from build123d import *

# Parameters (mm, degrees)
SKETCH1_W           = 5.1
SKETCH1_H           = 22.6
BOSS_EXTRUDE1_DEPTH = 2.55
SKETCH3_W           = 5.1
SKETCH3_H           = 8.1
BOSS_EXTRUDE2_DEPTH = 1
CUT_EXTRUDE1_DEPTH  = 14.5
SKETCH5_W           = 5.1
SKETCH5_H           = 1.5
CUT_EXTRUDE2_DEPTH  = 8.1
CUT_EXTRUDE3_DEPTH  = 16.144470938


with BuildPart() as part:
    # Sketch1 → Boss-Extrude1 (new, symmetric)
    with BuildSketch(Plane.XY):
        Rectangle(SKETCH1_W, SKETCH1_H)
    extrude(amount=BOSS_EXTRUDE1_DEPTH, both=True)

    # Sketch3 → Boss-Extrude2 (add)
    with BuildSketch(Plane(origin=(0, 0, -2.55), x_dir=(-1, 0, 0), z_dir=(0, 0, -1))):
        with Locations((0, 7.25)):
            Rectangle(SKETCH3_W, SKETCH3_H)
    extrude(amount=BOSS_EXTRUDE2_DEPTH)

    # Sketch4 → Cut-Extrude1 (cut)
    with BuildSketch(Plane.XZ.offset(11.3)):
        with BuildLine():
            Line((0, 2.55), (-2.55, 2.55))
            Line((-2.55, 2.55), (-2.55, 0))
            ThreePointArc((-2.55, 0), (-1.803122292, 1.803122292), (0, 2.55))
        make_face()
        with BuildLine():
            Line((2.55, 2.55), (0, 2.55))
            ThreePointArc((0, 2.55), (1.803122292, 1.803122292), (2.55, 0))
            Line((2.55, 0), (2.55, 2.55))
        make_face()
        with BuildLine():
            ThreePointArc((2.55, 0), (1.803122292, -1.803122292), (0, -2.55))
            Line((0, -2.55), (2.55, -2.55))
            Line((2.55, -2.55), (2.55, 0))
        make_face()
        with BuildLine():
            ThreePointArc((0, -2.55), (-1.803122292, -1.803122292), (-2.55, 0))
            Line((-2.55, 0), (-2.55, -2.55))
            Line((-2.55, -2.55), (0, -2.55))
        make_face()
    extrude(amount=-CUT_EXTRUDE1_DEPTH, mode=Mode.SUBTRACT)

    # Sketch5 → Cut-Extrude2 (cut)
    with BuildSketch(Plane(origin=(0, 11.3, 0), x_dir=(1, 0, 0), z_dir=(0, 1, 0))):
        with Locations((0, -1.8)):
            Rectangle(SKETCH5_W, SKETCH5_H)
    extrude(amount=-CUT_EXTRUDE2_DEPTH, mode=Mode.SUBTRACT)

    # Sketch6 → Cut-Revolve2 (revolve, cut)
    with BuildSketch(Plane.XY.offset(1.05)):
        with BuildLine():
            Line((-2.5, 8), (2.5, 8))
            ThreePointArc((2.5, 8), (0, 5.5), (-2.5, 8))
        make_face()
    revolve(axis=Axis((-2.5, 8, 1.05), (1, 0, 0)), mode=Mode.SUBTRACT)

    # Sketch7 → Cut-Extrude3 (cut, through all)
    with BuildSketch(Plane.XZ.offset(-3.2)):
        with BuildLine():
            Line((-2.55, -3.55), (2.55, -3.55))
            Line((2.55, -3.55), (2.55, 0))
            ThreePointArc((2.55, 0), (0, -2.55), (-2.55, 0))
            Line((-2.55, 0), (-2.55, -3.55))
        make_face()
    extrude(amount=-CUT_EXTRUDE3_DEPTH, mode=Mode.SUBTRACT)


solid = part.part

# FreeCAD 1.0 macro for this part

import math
import FreeCAD as App
import Part
import Sketcher
from FreeCAD import Vector

doc = App.newDocument("Part")
params = doc.addObject("Spreadsheet::Sheet", "Params")
for row, (alias, value) in enumerate([
    ("sketch1_width", "5.1 mm"),
    ("sketch1_height", "22.6 mm"),
    ("pad1_length", "5.1 mm"),
    ("sketch2_width", "5.1 mm"),
    ("sketch2_height", "8.1 mm"),
    ("pad2_length", "1 mm"),
    ("sketch3_radius", "2.55 mm"),
    ("pocket1_length", "14.5 mm"),
    ("sketch4_width", "5.1 mm"),
    ("sketch4_height", "1.5 mm"),
    ("pocket2_length", "8.1 mm"),
    ("sketch5_radius", "2.5 mm"),
    ("groove_angle", "360 deg"),
    ("sketch6_radius", "2.55 mm"),
    ("sketch6_height", "3.55 mm"),
], start=1):
    params.set(f"A{row}", alias)
    params.set(f"B{row}", "=" + value)
    params.setAlias(f"B{row}", alias)

body = doc.addObject("PartDesign::Body", "Body")

sketch1 = doc.addObject("Sketcher::SketchObject", "Sketch")
body.addObject(sketch1)
sketch1.AttachmentSupport = (doc.XY_Plane, [""])
sketch1.MapMode = "FlatFace"
sketch1.addGeometry([
    Part.LineSegment(Vector(-2.55, 11.3, 0), Vector(-2.55, -11.3, 0)),
    Part.LineSegment(Vector(-2.55, -11.3, 0), Vector(2.55, -11.3, 0)),
    Part.LineSegment(Vector(2.55, -11.3, 0), Vector(2.55, 11.3, 0)),
    Part.LineSegment(Vector(2.55, 11.3, 0), Vector(-2.55, 11.3, 0)),
], False)
sketch1.addConstraint([
    Sketcher.Constraint("Coincident", 0, 2, 1, 1),
    Sketcher.Constraint("Coincident", 1, 2, 2, 1),
    Sketcher.Constraint("Coincident", 2, 2, 3, 1),
    Sketcher.Constraint("Coincident", 3, 2, 0, 1),
    Sketcher.Constraint("Vertical", 0),
    Sketcher.Constraint("Horizontal", 1),
    Sketcher.Constraint("Vertical", 2),
    Sketcher.Constraint("Horizontal", 3),
    Sketcher.Constraint("Symmetric", 0, 2, 2, 2, -1, 1),
    Sketcher.Constraint("DistanceX", 1, 1, 1, 2, 5.1),
    Sketcher.Constraint("DistanceY", 0, 2, 0, 1, 22.6),
])
sketch1.setExpression("Constraints[9]", "Params.sketch1_width")
sketch1.setExpression("Constraints[10]", "Params.sketch1_height")
pad1 = doc.addObject("PartDesign::Pad", "Pad")
body.addObject(pad1)
pad1.Profile = sketch1
pad1.setExpression("Length", "Params.pad1_length")
pad1.Midplane = True

sketch2 = doc.addObject("Sketcher::SketchObject", "Sketch001")
body.addObject(sketch2)
sketch2.AttachmentSupport = (doc.XY_Plane, [""])
sketch2.MapMode = "FlatFace"
sketch2.AttachmentOffset = App.Placement(Vector(0, 0, -2.55), App.Rotation())
sketch2.addGeometry([
    Part.LineSegment(Vector(2.55, 11.3, 0), Vector(2.55, 3.2, 0)),
    Part.LineSegment(Vector(2.55, 3.2, 0), Vector(-2.55, 3.2, 0)),
    Part.LineSegment(Vector(-2.55, 3.2, 0), Vector(-2.55, 11.3, 0)),
    Part.LineSegment(Vector(-2.55, 11.3, 0), Vector(2.55, 11.3, 0)),
], False)
sketch2.addConstraint([
    Sketcher.Constraint("Coincident", 0, 2, 1, 1),
    Sketcher.Constraint("Coincident", 1, 2, 2, 1),
    Sketcher.Constraint("Coincident", 2, 2, 3, 1),
    Sketcher.Constraint("Coincident", 3, 2, 0, 1),
    Sketcher.Constraint("Vertical", 0),
    Sketcher.Constraint("Horizontal", 1),
    Sketcher.Constraint("Vertical", 2),
    Sketcher.Constraint("Horizontal", 3),
    Sketcher.Constraint("DistanceX", 1, 2, 1, 1, 5.1),
    Sketcher.Constraint("DistanceY", 0, 2, 0, 1, 8.1),
    Sketcher.Constraint("DistanceY", -1, 1, 0, 2, 3.2),
    Sketcher.Constraint("DistanceX", -1, 1, 0, 2, 2.55),
])
sketch2.setExpression("Constraints[8]", "Params.sketch2_width")
sketch2.setExpression("Constraints[9]", "Params.sketch2_height")
pad2 = doc.addObject("PartDesign::Pad", "Pad001")
body.addObject(pad2)
pad2.Profile = sketch2
pad2.setExpression("Length", "Params.pad2_length")
pad2.Reversed = True

sketch3 = doc.addObject("Sketcher::SketchObject", "Sketch002")
body.addObject(sketch3)
sketch3.AttachmentSupport = (doc.XZ_Plane, [""])
sketch3.MapMode = "FlatFace"
sketch3.AttachmentOffset = App.Placement(Vector(0, 0, 11.3), App.Rotation())
sketch3.addGeometry([
    Part.LineSegment(Vector(0, 2.55, 0), Vector(-2.55, 2.55, 0)),
    Part.LineSegment(Vector(-2.55, 2.55, 0), Vector(-2.55, 0, 0)),
    Part.ArcOfCircle(Part.Circle(Vector(0, 0, 0), Vector(0, 0, 1), 2.55), math.radians(90), math.radians(180)),
    Part.LineSegment(Vector(2.55, 2.55, 0), Vector(0, 2.55, 0)),
    Part.ArcOfCircle(Part.Circle(Vector(0, 0, 0), Vector(0, 0, 1), 2.55), math.radians(0), math.radians(90)),
    Part.LineSegment(Vector(2.55, 0, 0), Vector(2.55, 2.55, 0)),
    Part.ArcOfCircle(Part.Circle(Vector(0, 0, 0), Vector(0, 0, 1), 2.55), math.radians(-90), math.radians(0)),
    Part.LineSegment(Vector(0, -2.55, 0), Vector(2.55, -2.55, 0)),
    Part.LineSegment(Vector(2.55, -2.55, 0), Vector(2.55, 0, 0)),
    Part.ArcOfCircle(Part.Circle(Vector(0, 0, 0), Vector(0, 0, 1), 2.55), math.radians(180), math.radians(270)),
    Part.LineSegment(Vector(-2.55, 0, 0), Vector(-2.55, -2.55, 0)),
    Part.LineSegment(Vector(-2.55, -2.55, 0), Vector(0, -2.55, 0)),
], False)
sketch3.addConstraint([
    Sketcher.Constraint("Coincident", 0, 2, 1, 1),
    Sketcher.Constraint("Tangent", 1, 2, 2, 2),
    Sketcher.Constraint("Tangent", 2, 1, 0, 1),
    Sketcher.Constraint("Tangent", 3, 2, 4, 2),
    Sketcher.Constraint("Tangent", 4, 1, 5, 1),
    Sketcher.Constraint("Coincident", 5, 2, 3, 1),
    Sketcher.Constraint("Tangent", 6, 1, 7, 1),
    Sketcher.Constraint("Coincident", 7, 2, 8, 1),
    Sketcher.Constraint("Tangent", 8, 2, 6, 2),
    Sketcher.Constraint("Tangent", 9, 1, 10, 1),
    Sketcher.Constraint("Coincident", 10, 2, 11, 1),
    Sketcher.Constraint("Tangent", 11, 2, 9, 2),
    Sketcher.Constraint("Horizontal", 0),
    Sketcher.Constraint("Vertical", 1),
    Sketcher.Constraint("Horizontal", 3),
    Sketcher.Constraint("Vertical", 5),
    Sketcher.Constraint("Horizontal", 7),
    Sketcher.Constraint("Vertical", 8),
    Sketcher.Constraint("Vertical", 10),
    Sketcher.Constraint("Horizontal", 11),
    Sketcher.Constraint("Coincident", 2, 3, -1, 1),
    Sketcher.Constraint("Coincident", 4, 3, -1, 1),
    Sketcher.Constraint("Coincident", 6, 3, -1, 1),
    Sketcher.Constraint("Coincident", 9, 3, -1, 1),
    Sketcher.Constraint("Equal", 2, 4),
    Sketcher.Constraint("Equal", 4, 6),
    Sketcher.Constraint("Equal", 6, 9),
    Sketcher.Constraint("Radius", 2, 2.55),
])
sketch3.setExpression("Constraints[27]", "Params.sketch3_radius")
pocket1 = doc.addObject("PartDesign::Pocket", "Pocket")
body.addObject(pocket1)
pocket1.Profile = sketch3
pocket1.setExpression("Length", "Params.pocket1_length")

sketch4 = doc.addObject("Sketcher::SketchObject", "Sketch003")
body.addObject(sketch4)
sketch4.AttachmentSupport = (doc.XZ_Plane, [""])
sketch4.MapMode = "FlatFace"
sketch4.AttachmentOffset = App.Placement(Vector(0, 0, -11.3), App.Rotation())
sketch4.addGeometry([
    Part.LineSegment(Vector(-2.55, 1.05, 0), Vector(-2.55, 2.55, 0)),
    Part.LineSegment(Vector(-2.55, 2.55, 0), Vector(2.55, 2.55, 0)),
    Part.LineSegment(Vector(2.55, 2.55, 0), Vector(2.55, 1.05, 0)),
    Part.LineSegment(Vector(2.55, 1.05, 0), Vector(-2.55, 1.05, 0)),
], False)
sketch4.addConstraint([
    Sketcher.Constraint("Coincident", 0, 2, 1, 1),
    Sketcher.Constraint("Coincident", 1, 2, 2, 1),
    Sketcher.Constraint("Coincident", 2, 2, 3, 1),
    Sketcher.Constraint("Coincident", 3, 2, 0, 1),
    Sketcher.Constraint("Vertical", 0),
    Sketcher.Constraint("Horizontal", 1),
    Sketcher.Constraint("Vertical", 2),
    Sketcher.Constraint("Horizontal", 3),
    Sketcher.Constraint("DistanceX", 1, 1, 1, 2, 5.1),
    Sketcher.Constraint("DistanceY", 0, 1, 0, 2, 1.5),
    Sketcher.Constraint("DistanceX", 0, 2, -1, 1, 2.55),
    Sketcher.Constraint("DistanceY", -1, 1, 0, 2, 2.55),
])
sketch4.setExpression("Constraints[8]", "Params.sketch4_width")
sketch4.setExpression("Constraints[9]", "Params.sketch4_height")
pocket2 = doc.addObject("PartDesign::Pocket", "Pocket001")
body.addObject(pocket2)
pocket2.Profile = sketch4
pocket2.setExpression("Length", "Params.pocket2_length")
pocket2.Reversed = True

sketch5 = doc.addObject("Sketcher::SketchObject", "Sketch004")
body.addObject(sketch5)
sketch5.AttachmentSupport = (doc.XY_Plane, [""])
sketch5.MapMode = "FlatFace"
sketch5.AttachmentOffset = App.Placement(Vector(0, 0, 1.05), App.Rotation())
sketch5.addGeometry([
    Part.LineSegment(Vector(2.5, 8, 0), Vector(-2.5, 8, 0)),
    Part.ArcOfCircle(Part.Circle(Vector(0, 8, 0), Vector(0, 0, 1), 2.5), math.radians(180), math.radians(360)),
], False)
sketch5.addGeometry(Part.LineSegment(Vector(-2.5, 8, 0), Vector(2.5, 8, 0)), True)
sketch5.addConstraint([
    Sketcher.Constraint("Coincident", 0, 1, 1, 2),
    Sketcher.Constraint("Coincident", 1, 1, 0, 2),
    Sketcher.Constraint("Horizontal", 0),
    Sketcher.Constraint("Horizontal", 2),
    Sketcher.Constraint("Coincident", 2, 1, 1, 1),
    Sketcher.Constraint("PointOnObject", 1, 3, -2),
    Sketcher.Constraint("Horizontal", 1, 3, 0, 1),
    Sketcher.Constraint("Equal", 0, 2),
    Sketcher.Constraint("Radius", 1, 2.5),
    Sketcher.Constraint("DistanceY", -1, 1, 1, 3, 8.0),
])
sketch5.setExpression("Constraints[8]", "Params.sketch5_radius")
groove = doc.addObject("PartDesign::Groove", "Groove")
body.addObject(groove)
groove.Profile = sketch5
groove.ReferenceAxis = (sketch5, ["Axis0"])
groove.setExpression("Angle", "Params.groove_angle")

sketch6 = doc.addObject("Sketcher::SketchObject", "Sketch005")
body.addObject(sketch6)
sketch6.AttachmentSupport = (doc.XZ_Plane, [""])
sketch6.MapMode = "FlatFace"
sketch6.AttachmentOffset = App.Placement(Vector(0, 0, -3.2), App.Rotation())
sketch6.addGeometry([
    Part.LineSegment(Vector(-2.55, -3.55, 0), Vector(2.55, -3.55, 0)),
    Part.LineSegment(Vector(2.55, -3.55, 0), Vector(2.55, 0, 0)),
    Part.ArcOfCircle(Part.Circle(Vector(0, 0, 0), Vector(0, 0, 1), 2.55), math.radians(180), math.radians(360)),
    Part.LineSegment(Vector(-2.55, 0, 0), Vector(-2.55, -3.55, 0)),
], False)
sketch6.addConstraint([
    Sketcher.Constraint("Coincident", 0, 2, 1, 1),
    Sketcher.Constraint("Tangent", 1, 2, 2, 2),
    Sketcher.Constraint("Tangent", 2, 1, 3, 1),
    Sketcher.Constraint("Coincident", 3, 2, 0, 1),
    Sketcher.Constraint("Horizontal", 0),
    Sketcher.Constraint("Vertical", 1),
    Sketcher.Constraint("Vertical", 3),
    Sketcher.Constraint("Coincident", 2, 3, -1, 1),
    Sketcher.Constraint("Radius", 2, 2.55),
    Sketcher.Constraint("DistanceY", 1, 1, 1, 2, 3.55),
])
sketch6.setExpression("Constraints[8]", "Params.sketch6_radius")
sketch6.setExpression("Constraints[9]", "Params.sketch6_height")
pocket3 = doc.addObject("PartDesign::Pocket", "Pocket002")
body.addObject(pocket3)
pocket3.Profile = sketch6
pocket3.Type = "ThroughAll"

doc.recompute()
